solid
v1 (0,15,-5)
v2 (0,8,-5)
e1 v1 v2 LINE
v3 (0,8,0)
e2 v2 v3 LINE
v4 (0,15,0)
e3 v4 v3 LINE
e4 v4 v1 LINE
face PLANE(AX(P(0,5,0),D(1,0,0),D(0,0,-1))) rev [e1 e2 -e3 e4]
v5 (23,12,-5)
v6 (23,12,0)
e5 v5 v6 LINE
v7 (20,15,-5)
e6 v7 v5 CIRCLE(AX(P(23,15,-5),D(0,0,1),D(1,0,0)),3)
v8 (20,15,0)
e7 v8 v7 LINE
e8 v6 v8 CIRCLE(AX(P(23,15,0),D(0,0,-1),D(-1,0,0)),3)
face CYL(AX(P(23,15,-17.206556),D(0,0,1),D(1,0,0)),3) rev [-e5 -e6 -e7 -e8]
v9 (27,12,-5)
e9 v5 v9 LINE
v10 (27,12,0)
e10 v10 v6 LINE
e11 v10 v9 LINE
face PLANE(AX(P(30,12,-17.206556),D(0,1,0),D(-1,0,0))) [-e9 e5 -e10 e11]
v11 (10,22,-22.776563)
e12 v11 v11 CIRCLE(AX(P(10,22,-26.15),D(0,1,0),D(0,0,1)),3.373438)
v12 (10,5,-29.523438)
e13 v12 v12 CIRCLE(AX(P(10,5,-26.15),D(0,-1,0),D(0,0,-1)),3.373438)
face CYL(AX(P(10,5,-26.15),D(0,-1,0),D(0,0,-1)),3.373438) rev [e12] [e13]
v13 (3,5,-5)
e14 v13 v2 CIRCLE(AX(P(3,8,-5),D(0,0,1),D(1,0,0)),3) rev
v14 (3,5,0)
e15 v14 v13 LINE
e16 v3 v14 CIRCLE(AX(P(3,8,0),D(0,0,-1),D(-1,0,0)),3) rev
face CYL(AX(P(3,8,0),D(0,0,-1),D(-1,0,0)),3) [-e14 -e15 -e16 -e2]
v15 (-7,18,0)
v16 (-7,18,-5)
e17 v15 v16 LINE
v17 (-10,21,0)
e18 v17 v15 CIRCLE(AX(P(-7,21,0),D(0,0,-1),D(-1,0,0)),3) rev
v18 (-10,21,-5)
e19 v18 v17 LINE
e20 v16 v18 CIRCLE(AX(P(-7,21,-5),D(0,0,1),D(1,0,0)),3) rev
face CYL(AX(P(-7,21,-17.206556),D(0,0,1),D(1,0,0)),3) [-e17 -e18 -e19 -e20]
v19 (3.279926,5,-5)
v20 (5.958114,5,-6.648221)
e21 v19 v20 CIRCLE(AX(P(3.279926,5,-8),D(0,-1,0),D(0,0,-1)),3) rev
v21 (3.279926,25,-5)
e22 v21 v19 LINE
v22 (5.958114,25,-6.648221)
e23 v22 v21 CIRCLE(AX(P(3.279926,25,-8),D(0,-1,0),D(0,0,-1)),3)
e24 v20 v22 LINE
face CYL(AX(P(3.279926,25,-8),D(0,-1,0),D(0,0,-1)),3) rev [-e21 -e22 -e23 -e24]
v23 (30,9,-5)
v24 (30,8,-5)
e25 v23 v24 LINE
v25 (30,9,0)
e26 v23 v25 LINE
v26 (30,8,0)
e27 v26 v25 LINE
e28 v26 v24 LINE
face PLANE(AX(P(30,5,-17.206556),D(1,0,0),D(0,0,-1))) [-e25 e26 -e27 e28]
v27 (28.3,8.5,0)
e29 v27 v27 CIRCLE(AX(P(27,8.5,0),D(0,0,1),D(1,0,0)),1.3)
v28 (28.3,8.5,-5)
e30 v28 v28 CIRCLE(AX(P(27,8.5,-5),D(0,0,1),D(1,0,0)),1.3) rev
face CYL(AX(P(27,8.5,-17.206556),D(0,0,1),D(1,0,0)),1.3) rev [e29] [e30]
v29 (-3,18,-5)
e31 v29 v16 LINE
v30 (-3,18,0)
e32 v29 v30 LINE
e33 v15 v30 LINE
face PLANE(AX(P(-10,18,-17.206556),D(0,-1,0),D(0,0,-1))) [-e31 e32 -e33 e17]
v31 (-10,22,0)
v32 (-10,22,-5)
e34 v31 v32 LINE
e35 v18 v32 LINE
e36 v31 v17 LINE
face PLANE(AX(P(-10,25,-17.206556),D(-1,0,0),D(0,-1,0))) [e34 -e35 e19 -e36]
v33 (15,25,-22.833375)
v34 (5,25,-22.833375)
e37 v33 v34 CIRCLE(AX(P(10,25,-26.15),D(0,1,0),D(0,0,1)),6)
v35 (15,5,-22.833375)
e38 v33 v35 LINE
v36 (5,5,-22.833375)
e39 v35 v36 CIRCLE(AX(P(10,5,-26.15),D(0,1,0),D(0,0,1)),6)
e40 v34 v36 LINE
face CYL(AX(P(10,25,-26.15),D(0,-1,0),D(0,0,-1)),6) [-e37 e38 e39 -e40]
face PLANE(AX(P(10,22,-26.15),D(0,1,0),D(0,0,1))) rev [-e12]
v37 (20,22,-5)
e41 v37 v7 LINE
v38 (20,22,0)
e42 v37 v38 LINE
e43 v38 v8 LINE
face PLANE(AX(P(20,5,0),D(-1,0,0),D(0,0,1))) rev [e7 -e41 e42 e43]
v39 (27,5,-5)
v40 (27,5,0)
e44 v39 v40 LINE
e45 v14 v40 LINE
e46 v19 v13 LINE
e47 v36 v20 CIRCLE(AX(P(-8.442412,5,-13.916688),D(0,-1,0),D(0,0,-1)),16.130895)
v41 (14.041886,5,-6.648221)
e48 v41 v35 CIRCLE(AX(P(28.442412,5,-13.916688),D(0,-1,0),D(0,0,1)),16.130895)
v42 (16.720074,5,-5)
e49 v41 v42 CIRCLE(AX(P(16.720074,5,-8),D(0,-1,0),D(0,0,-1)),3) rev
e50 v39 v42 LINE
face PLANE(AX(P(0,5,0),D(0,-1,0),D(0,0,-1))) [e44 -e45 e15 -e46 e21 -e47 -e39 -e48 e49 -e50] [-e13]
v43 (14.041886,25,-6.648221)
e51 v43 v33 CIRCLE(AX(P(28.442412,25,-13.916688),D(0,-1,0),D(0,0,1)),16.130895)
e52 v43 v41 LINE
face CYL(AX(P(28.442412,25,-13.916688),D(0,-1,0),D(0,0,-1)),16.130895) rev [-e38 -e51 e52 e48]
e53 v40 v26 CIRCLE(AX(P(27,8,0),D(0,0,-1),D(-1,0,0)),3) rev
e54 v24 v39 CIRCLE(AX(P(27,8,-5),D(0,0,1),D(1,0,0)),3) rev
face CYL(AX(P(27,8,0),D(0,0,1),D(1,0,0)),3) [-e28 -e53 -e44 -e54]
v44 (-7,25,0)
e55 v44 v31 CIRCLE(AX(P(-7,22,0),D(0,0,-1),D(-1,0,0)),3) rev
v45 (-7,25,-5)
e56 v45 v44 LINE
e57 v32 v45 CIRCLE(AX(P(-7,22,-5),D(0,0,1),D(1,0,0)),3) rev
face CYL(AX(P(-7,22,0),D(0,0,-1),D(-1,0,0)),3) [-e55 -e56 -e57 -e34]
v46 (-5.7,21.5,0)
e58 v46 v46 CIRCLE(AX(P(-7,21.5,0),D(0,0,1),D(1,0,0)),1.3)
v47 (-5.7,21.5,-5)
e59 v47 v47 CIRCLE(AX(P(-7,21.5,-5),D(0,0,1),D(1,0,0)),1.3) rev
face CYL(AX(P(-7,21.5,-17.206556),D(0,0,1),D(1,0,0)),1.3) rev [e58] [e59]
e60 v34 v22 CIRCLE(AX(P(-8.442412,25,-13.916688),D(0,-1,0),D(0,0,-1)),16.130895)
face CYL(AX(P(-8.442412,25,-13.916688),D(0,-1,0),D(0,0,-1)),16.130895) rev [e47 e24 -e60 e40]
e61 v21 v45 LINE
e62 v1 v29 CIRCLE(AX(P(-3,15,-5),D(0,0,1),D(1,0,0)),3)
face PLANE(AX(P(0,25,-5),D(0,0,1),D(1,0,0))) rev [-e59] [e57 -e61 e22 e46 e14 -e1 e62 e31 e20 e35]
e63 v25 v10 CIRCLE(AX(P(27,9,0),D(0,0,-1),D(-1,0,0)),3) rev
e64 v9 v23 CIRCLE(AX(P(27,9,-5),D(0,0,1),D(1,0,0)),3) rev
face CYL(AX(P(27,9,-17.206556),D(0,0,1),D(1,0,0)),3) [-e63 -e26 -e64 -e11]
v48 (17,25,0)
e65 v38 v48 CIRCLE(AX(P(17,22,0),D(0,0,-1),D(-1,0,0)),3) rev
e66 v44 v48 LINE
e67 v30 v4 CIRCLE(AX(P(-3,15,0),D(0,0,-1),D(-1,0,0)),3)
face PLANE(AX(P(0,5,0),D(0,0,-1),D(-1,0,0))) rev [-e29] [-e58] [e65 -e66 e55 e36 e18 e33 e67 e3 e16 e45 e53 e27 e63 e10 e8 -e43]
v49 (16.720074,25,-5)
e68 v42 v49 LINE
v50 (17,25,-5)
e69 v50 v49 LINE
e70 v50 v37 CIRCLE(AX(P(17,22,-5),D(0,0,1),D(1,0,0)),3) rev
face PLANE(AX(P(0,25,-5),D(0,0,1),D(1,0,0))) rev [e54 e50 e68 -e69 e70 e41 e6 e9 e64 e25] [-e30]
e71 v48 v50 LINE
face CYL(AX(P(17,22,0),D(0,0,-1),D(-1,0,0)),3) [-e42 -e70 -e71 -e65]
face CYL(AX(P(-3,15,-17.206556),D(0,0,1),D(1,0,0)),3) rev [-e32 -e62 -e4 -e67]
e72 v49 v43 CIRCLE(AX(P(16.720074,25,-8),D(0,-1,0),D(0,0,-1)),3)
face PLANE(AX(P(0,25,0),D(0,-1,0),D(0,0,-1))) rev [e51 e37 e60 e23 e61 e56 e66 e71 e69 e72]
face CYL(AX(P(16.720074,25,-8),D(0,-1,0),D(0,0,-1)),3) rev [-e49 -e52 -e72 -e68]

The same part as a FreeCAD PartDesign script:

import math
import FreeCAD as App
import Part
import Sketcher
from FreeCAD import Vector


def edges_at(feature, points):
    """Names of the edges that pass closest to the given points."""
    edges = feature.Shape.Edges
    near = lambda p: min(range(len(edges)), key=lambda i: edges[i].distToShape(Part.Vertex(*p))[0])
    return sorted({f"Edge{near(p) + 1}" for p in points})

doc = App.newDocument("Part")
params = doc.addObject("Spreadsheet::Sheet", "Params")
for row, (alias, value) in enumerate([
    ("sketch1_width", "20 mm"),
    ("sketch1_height", "35 mm"),
    ("pad1_length", "5 mm"),
    ("sketch2_width", "20 mm"),
    ("sketch2_height", "5 mm"),
    ("pad2_length", "20 mm"),
    ("sketch3_radius", "6 mm"),
    ("sketch3_width", "10 mm"),
    ("pad3_length", "20 mm"),
    ("sketch4_width", "20 mm"),
    ("sketch4_height", "35 mm"),
    ("pocket1_length", "5 mm"),
    ("pad4_length", "3 mm"),
    ("sketch6_diameter", "2.6 mm"),
    ("sketch6_width", "10 mm"),
    ("sketch6_height", "7 mm"),
    ("pad5_length", "5 mm"),
    ("fillet_radius", "3 mm"),
], start=1):
    params.set(f"A{row}", alias)
    params.set(f"B{row}", "=" + value)
    params.setAlias(f"B{row}", alias)

body = doc.addObject("PartDesign::Body", "Body")

sketch1 = body.newObject("Sketcher::SketchObject", "Sketch")
sketch1.AttachmentSupport = (doc.getObject("XZ_Plane"), [""])
sketch1.MapMode = "FlatFace"
sketch1.addGeometry(Part.LineSegment(Vector(0, -35, 0), Vector(0, 0, 0)), False)
sketch1.addGeometry(Part.LineSegment(Vector(0, 0, 0), Vector(20, 0, 0)), False)
sketch1.addGeometry(Part.LineSegment(Vector(20, 0, 0), Vector(20, -35, 0)), False)
sketch1.addGeometry(Part.LineSegment(Vector(20, -35, 0), Vector(0, -35, 0)), False)
sketch1.addGeometry(Part.Circle(Vector(10, -26.1, 0), Vector(0, 0, 1), 3.4), False)
sketch1.addConstraint(Sketcher.Constraint("Coincident", 0, 2, 1, 1))
sketch1.addConstraint(Sketcher.Constraint("Coincident", 1, 2, 2, 1))
sketch1.addConstraint(Sketcher.Constraint("Coincident", 2, 2, 3, 1))
sketch1.addConstraint(Sketcher.Constraint("Coincident", 3, 2, 0, 1))
sketch1.addConstraint(Sketcher.Constraint("Vertical", 0))
sketch1.addConstraint(Sketcher.Constraint("Horizontal", 1))
sketch1.addConstraint(Sketcher.Constraint("Vertical", 2))
sketch1.addConstraint(Sketcher.Constraint("Horizontal", 3))
sketch1.addConstraint(Sketcher.Constraint("Coincident", 0, 2, -1, 1))
sketch1.addConstraint(Sketcher.Constraint("DistanceX", 1, 1, 1, 2, 20.0))
sketch1.addConstraint(Sketcher.Constraint("DistanceY", 0, 1, 0, 2, 35.0))
sketch1.addConstraint(Sketcher.Constraint("DistanceX", -1, 1, 4, 3, 10.0))
sketch1.addConstraint(Sketcher.Constraint("DistanceY", 4, 3, -1, 1, 26.15))
sketch1.addConstraint(Sketcher.Constraint("Diameter", 4, 6.746875))
sketch1.setExpression("Constraints[9]", "Params.sketch1_width")
sketch1.setExpression("Constraints[10]", "Params.sketch1_height")
pad1 = body.newObject("PartDesign::Pad", "Pad")
pad1.Profile = sketch1
pad1.setExpression("Length", "Params.pad1_length")
pad1.Reversed = True

sketch2 = body.newObject("Sketcher::SketchObject", "Sketch001")
sketch2.AttachmentSupport = (doc.getObject("XZ_Plane"), [""])
sketch2.MapMode = "FlatFace"
sketch2.AttachmentOffset = App.Placement(Vector(0, 0, -5), App.Rotation())
sketch2.addGeometry(Part.LineSegment(Vector(0, -5, 0), Vector(0, 0, 0)), False)
sketch2.addGeometry(Part.LineSegment(Vector(0, 0, 0), Vector(20, 0, 0)), False)
sketch2.addGeometry(Part.LineSegment(Vector(20, 0, 0), Vector(20, -5, 0)), False)
sketch2.addGeometry(Part.LineSegment(Vector(20, -5, 0), Vector(0, -5, 0)), False)
sketch2.addConstraint(Sketcher.Constraint("Coincident", 0, 2, 1, 1))
sketch2.addConstraint(Sketcher.Constraint("Coincident", 1, 2, 2, 1))
sketch2.addConstraint(Sketcher.Constraint("Coincident", 2, 2, 3, 1))
sketch2.addConstraint(Sketcher.Constraint("Coincident", 3, 2, 0, 1))
sketch2.addConstraint(Sketcher.Constraint("Vertical", 0))
sketch2.addConstraint(Sketcher.Constraint("Horizontal", 1))
sketch2.addConstraint(Sketcher.Constraint("Vertical", 2))
sketch2.addConstraint(Sketcher.Constraint("Horizontal", 3))
sketch2.addConstraint(Sketcher.Constraint("Coincident", 0, 2, -1, 1))
sketch2.addConstraint(Sketcher.Constraint("DistanceX", 1, 1, 1, 2, 20.0))
sketch2.addConstraint(Sketcher.Constraint("DistanceY", 0, 1, 0, 2, 5.0))
sketch2.setExpression("Constraints[9]", "Params.sketch2_width")
sketch2.setExpression("Constraints[10]", "Params.sketch2_height")
pad2 = body.newObject("PartDesign::Pad", "Pad001")
pad2.Profile = sketch2
pad2.setExpression("Length", "Params.pad2_length")
pad2.Reversed = True

sketch3 = body.newObject("Sketcher::SketchObject", "Sketch002")
sketch3.AttachmentSupport = (doc.getObject("XZ_Plane"), [""])
sketch3.MapMode = "FlatFace"
sketch3.AttachmentOffset = App.Placement(Vector(0, 0, -5), App.Rotation())
sketch3.addGeometry(Part.LineSegment(Vector(5, -5, 0), Vector(15, -5, 0)), False)
sketch3.addGeometry(Part.ArcOfCircle(Part.Circle(Vector(28.4, -13.9, 0), Vector(0, 0, 1), 16.1), math.radians(146), math.radians(214)), False)
sketch3.addGeometry(Part.ArcOfCircle(Part.Circle(Vector(10, -26.1, 0), Vector(0, 0, 1), 6), math.radians(146), math.radians(394)), False)
sketch3.addGeometry(Part.ArcOfCircle(Part.Circle(Vector(-8.4, -13.9, 0), Vector(0, 0, 1), 16.1), math.radians(-34), math.radians(34)), False)
sketch3.addGeometry(Part.Circle(Vector(10, -26.1, 0), Vector(0, 0, 1), 3.4), False)
sketch3.addConstraint(Sketcher.Constraint("Coincident", 0, 2, 1, 1))
sketch3.addConstraint(Sketcher.Constraint("Tangent", 1, 2, 2, 2))
sketch3.addConstraint(Sketcher.Constraint("Tangent", 2, 1, 3, 1))
sketch3.addConstraint(Sketcher.Constraint("Coincident", 3, 2, 0, 1))
sketch3.addConstraint(Sketcher.Constraint("Horizontal", 0))
sketch3.addConstraint(Sketcher.Constraint("Coincident", 4, 3, 2, 3))
sketch3.addConstraint(Sketcher.Constraint("Equal", 1, 3))
sketch3.addConstraint(Sketcher.Constraint("Horizontal", 1, 3, 3, 3))
sketch3.addConstraint(Sketcher.Constraint("Vertical", 0, 2, 1, 2))
sketch3.addConstraint(Sketcher.Constraint("Radius", 2, 6.0))
sketch3.addConstraint(Sketcher.Constraint("DistanceX", 0, 1, 0, 2, 10.0))
sketch3.addConstraint(Sketcher.Constraint("DistanceX", -1, 1, 2, 3, 10.0))
sketch3.addConstraint(Sketcher.Constraint("DistanceY", 0, 2, -1, 1, 5.0))
sketch3.addConstraint(Sketcher.Constraint("DistanceY", 2, 3, -1, 1, 26.15))
sketch3.addConstraint(Sketcher.Constraint("Diameter", 4, 6.746875))
sketch3.setExpression("Constraints[9]", "Params.sketch3_radius")
sketch3.setExpression("Constraints[10]", "Params.sketch3_width")
pad3 = body.newObject("PartDesign::Pad", "Pad002")
pad3.Profile = sketch3
pad3.setExpression("Length", "Params.pad3_length")
pad3.Reversed = True

sketch4 = body.newObject("Sketcher::SketchObject", "Sketch003")
sketch4.AttachmentSupport = (doc.getObject("XZ_Plane"), [""])
sketch4.MapMode = "FlatFace"
sketch4.addGeometry(Part.LineSegment(Vector(0, 0, 0), Vector(0, -35, 0)), False)
sketch4.addGeometry(Part.LineSegment(Vector(0, -35, 0), Vector(20, -35, 0)), False)
sketch4.addGeometry(Part.LineSegment(Vector(20, -35, 0), Vector(20, 0, 0)), False)
sketch4.addGeometry(Part.LineSegment(Vector(20, 0, 0), Vector(0, 0, 0)), False)
sketch4.addConstraint(Sketcher.Constraint("Coincident", 0, 2, 1, 1))
sketch4.addConstraint(Sketcher.Constraint("Coincident", 1, 2, 2, 1))
sketch4.addConstraint(Sketcher.Constraint("Coincident", 2, 2, 3, 1))
sketch4.addConstraint(Sketcher.Constraint("Coincident", 3, 2, 0, 1))
sketch4.addConstraint(Sketcher.Constraint("Vertical", 0))
sketch4.addConstraint(Sketcher.Constraint("Horizontal", 1))
sketch4.addConstraint(Sketcher.Constraint("Vertical", 2))
sketch4.addConstraint(Sketcher.Constraint("Horizontal", 3))
sketch4.addConstraint(Sketcher.Constraint("Coincident", 3, 2, -1, 1))
sketch4.addConstraint(Sketcher.Constraint("DistanceX", 1, 1, 1, 2, 20.0))
sketch4.addConstraint(Sketcher.Constraint("DistanceY", 0, 2, 0, 1, 35.0))
sketch4.setExpression("Constraints[9]", "Params.sketch4_width")
sketch4.setExpression("Constraints[10]", "Params.sketch4_height")
pocket1 = body.newObject("PartDesign::Pocket", "Pocket")
pocket1.Profile = sketch4
pocket1.setExpression("Length", "Params.pocket1_length")

sketch5 = body.newObject("Sketcher::SketchObject", "Sketch004")
sketch5.AttachmentSupport = (doc.getObject("XZ_Plane"), [""])
sketch5.MapMode = "FlatFace"
sketch5.AttachmentOffset = App.Placement(Vector(0, 0, -22), App.Rotation())
sketch5.addGeometry(Part.Circle(Vector(10, -26.1, 0), Vector(0, 0, 1), 3.4), False)
sketch5.addConstraint(Sketcher.Constraint("DistanceX", -1, 1, 0, 3, 10.0))
sketch5.addConstraint(Sketcher.Constraint("DistanceY", 0, 3, -1, 1, 26.15))
sketch5.addConstraint(Sketcher.Constraint("Diameter", 0, 6.746875))
pad4 = body.newObject("PartDesign::Pad", "Pad003")
pad4.Profile = sketch5
pad4.setExpression("Length", "Params.pad4_length")
pad4.Reversed = True

sketch6 = body.newObject("Sketcher::SketchObject", "Sketch005")
sketch6.AttachmentSupport = (doc.getObject("XY_Plane"), [""])
sketch6.MapMode = "FlatFace"
sketch6.addGeometry(Part.LineSegment(Vector(20, 12, 0), Vector(20, 5, 0)), False)
sketch6.addGeometry(Part.LineSegment(Vector(20, 5, 0), Vector(30, 5, 0)), False)
sketch6.addGeometry(Part.LineSegment(Vector(30, 5, 0), Vector(30, 12, 0)), False)
sketch6.addGeometry(Part.LineSegment(Vector(30, 12, 0), Vector(20, 12, 0)), False)
sketch6.addGeometry(Part.Circle(Vector(27, 8.5, 0), Vector(0, 0, 1), 1.3), False)
sketch6.addGeometry(Part.LineSegment(Vector(-10, 25, 0), Vector(-10, 18, 0)), False)
sketch6.addGeometry(Part.LineSegment(Vector(-10, 18, 0), Vector(0, 18, 0)), False)
sketch6.addGeometry(Part.LineSegment(Vector(0, 18, 0), Vector(0, 25, 0)), False)
sketch6.addGeometry(Part.LineSegment(Vector(0, 25, 0), Vector(-10, 25, 0)), False)
sketch6.addGeometry(Part.Circle(Vector(-7, 21.5, 0), Vector(0, 0, 1), 1.3), False)
sketch6.addConstraint(Sketcher.Constraint("Coincident", 0, 2, 1, 1))
sketch6.addConstraint(Sketcher.Constraint("Coincident", 1, 2, 2, 1))
sketch6.addConstraint(Sketcher.Constraint("Coincident", 2, 2, 3, 1))
sketch6.addConstraint(Sketcher.Constraint("Coincident", 3, 2, 0, 1))
sketch6.addConstraint(Sketcher.Constraint("Coincident", 5, 2, 6, 1))
sketch6.addConstraint(Sketcher.Constraint("Coincident", 6, 2, 7, 1))
sketch6.addConstraint(Sketcher.Constraint("Coincident", 7, 2, 8, 1))
sketch6.addConstraint(Sketcher.Constraint("Coincident", 8, 2, 5, 1))
sketch6.addConstraint(Sketcher.Constraint("Vertical", 0))
sketch6.addConstraint(Sketcher.Constraint("Horizontal", 1))
sketch6.addConstraint(Sketcher.Constraint("Vertical", 2))
sketch6.addConstraint(Sketcher.Constraint("Horizontal", 3))
sketch6.addConstraint(Sketcher.Constraint("Vertical", 5))
sketch6.addConstraint(Sketcher.Constraint("Horizontal", 6))
sketch6.addConstraint(Sketcher.Constraint("Vertical", 7))
sketch6.addConstraint(Sketcher.Constraint("Horizontal", 8))
sketch6.addConstraint(Sketcher.Constraint("Equal", 4, 9))
sketch6.addConstraint(Sketcher.Constraint("PointOnObject", 6, 2, -2))
sketch6.addConstraint(Sketcher.Constraint("Equal", 3, 6))
sketch6.addConstraint(Sketcher.Constraint("Equal", 2, 5))
sketch6.addConstraint(Sketcher.Constraint("Diameter", 4, 2.6))
sketch6.addConstraint(Sketcher.Constraint("DistanceX", 1, 1, 1, 2, 10.0))
sketch6.addConstraint(Sketcher.Constraint("DistanceY", 0, 2, 0, 1, 7.0))
sketch6.addConstraint(Sketcher.Constraint("DistanceX", -1, 1, 4, 3, 27.0))
sketch6.addConstraint(Sketcher.Constraint("DistanceX", 9, 3, -1, 1, 7.0))
sketch6.addConstraint(Sketcher.Constraint("DistanceX", -1, 1, 0, 2, 20.0))
sketch6.addConstraint(Sketcher.Constraint("DistanceY", -1, 1, 0, 2, 5.0))
sketch6.addConstraint(Sketcher.Constraint("DistanceY", -1, 1, 5, 2, 18.0))
sketch6.addConstraint(Sketcher.Constraint("DistanceY", 4, 3, 9, 3, 13.0))
sketch6.addConstraint(Sketcher.Constraint("DistanceY", -1, 1, 4, 3, 8.5))
sketch6.setExpression("Constraints[20]", "Params.sketch6_diameter")
sketch6.setExpression("Constraints[21]", "Params.sketch6_width")
sketch6.setExpression("Constraints[22]", "Params.sketch6_height")
pad5 = body.newObject("PartDesign::Pad", "Pad004")
pad5.Profile = sketch6
pad5.setExpression("Length", "Params.pad5_length")
pad5.Reversed = True
doc.recompute()

fillet = body.newObject("PartDesign::Fillet", "Fillet")
fillet.Base = (pad5, edges_at(pad5, [
    (20, 25, -2.5),
    (5, 15, -5),
    (15, 15, -5),
    (0, 5, -2.5),
    (30, 5, -2.5),
    (30, 12, -2.5),
    (20, 12, -2.5),
    (-10, 25, -2.5),
    (-10, 18, -2.5),
    (0, 18, -2.5),
]))
fillet.setExpression("Radius", "Params.fillet_radius")

doc.recompute()
